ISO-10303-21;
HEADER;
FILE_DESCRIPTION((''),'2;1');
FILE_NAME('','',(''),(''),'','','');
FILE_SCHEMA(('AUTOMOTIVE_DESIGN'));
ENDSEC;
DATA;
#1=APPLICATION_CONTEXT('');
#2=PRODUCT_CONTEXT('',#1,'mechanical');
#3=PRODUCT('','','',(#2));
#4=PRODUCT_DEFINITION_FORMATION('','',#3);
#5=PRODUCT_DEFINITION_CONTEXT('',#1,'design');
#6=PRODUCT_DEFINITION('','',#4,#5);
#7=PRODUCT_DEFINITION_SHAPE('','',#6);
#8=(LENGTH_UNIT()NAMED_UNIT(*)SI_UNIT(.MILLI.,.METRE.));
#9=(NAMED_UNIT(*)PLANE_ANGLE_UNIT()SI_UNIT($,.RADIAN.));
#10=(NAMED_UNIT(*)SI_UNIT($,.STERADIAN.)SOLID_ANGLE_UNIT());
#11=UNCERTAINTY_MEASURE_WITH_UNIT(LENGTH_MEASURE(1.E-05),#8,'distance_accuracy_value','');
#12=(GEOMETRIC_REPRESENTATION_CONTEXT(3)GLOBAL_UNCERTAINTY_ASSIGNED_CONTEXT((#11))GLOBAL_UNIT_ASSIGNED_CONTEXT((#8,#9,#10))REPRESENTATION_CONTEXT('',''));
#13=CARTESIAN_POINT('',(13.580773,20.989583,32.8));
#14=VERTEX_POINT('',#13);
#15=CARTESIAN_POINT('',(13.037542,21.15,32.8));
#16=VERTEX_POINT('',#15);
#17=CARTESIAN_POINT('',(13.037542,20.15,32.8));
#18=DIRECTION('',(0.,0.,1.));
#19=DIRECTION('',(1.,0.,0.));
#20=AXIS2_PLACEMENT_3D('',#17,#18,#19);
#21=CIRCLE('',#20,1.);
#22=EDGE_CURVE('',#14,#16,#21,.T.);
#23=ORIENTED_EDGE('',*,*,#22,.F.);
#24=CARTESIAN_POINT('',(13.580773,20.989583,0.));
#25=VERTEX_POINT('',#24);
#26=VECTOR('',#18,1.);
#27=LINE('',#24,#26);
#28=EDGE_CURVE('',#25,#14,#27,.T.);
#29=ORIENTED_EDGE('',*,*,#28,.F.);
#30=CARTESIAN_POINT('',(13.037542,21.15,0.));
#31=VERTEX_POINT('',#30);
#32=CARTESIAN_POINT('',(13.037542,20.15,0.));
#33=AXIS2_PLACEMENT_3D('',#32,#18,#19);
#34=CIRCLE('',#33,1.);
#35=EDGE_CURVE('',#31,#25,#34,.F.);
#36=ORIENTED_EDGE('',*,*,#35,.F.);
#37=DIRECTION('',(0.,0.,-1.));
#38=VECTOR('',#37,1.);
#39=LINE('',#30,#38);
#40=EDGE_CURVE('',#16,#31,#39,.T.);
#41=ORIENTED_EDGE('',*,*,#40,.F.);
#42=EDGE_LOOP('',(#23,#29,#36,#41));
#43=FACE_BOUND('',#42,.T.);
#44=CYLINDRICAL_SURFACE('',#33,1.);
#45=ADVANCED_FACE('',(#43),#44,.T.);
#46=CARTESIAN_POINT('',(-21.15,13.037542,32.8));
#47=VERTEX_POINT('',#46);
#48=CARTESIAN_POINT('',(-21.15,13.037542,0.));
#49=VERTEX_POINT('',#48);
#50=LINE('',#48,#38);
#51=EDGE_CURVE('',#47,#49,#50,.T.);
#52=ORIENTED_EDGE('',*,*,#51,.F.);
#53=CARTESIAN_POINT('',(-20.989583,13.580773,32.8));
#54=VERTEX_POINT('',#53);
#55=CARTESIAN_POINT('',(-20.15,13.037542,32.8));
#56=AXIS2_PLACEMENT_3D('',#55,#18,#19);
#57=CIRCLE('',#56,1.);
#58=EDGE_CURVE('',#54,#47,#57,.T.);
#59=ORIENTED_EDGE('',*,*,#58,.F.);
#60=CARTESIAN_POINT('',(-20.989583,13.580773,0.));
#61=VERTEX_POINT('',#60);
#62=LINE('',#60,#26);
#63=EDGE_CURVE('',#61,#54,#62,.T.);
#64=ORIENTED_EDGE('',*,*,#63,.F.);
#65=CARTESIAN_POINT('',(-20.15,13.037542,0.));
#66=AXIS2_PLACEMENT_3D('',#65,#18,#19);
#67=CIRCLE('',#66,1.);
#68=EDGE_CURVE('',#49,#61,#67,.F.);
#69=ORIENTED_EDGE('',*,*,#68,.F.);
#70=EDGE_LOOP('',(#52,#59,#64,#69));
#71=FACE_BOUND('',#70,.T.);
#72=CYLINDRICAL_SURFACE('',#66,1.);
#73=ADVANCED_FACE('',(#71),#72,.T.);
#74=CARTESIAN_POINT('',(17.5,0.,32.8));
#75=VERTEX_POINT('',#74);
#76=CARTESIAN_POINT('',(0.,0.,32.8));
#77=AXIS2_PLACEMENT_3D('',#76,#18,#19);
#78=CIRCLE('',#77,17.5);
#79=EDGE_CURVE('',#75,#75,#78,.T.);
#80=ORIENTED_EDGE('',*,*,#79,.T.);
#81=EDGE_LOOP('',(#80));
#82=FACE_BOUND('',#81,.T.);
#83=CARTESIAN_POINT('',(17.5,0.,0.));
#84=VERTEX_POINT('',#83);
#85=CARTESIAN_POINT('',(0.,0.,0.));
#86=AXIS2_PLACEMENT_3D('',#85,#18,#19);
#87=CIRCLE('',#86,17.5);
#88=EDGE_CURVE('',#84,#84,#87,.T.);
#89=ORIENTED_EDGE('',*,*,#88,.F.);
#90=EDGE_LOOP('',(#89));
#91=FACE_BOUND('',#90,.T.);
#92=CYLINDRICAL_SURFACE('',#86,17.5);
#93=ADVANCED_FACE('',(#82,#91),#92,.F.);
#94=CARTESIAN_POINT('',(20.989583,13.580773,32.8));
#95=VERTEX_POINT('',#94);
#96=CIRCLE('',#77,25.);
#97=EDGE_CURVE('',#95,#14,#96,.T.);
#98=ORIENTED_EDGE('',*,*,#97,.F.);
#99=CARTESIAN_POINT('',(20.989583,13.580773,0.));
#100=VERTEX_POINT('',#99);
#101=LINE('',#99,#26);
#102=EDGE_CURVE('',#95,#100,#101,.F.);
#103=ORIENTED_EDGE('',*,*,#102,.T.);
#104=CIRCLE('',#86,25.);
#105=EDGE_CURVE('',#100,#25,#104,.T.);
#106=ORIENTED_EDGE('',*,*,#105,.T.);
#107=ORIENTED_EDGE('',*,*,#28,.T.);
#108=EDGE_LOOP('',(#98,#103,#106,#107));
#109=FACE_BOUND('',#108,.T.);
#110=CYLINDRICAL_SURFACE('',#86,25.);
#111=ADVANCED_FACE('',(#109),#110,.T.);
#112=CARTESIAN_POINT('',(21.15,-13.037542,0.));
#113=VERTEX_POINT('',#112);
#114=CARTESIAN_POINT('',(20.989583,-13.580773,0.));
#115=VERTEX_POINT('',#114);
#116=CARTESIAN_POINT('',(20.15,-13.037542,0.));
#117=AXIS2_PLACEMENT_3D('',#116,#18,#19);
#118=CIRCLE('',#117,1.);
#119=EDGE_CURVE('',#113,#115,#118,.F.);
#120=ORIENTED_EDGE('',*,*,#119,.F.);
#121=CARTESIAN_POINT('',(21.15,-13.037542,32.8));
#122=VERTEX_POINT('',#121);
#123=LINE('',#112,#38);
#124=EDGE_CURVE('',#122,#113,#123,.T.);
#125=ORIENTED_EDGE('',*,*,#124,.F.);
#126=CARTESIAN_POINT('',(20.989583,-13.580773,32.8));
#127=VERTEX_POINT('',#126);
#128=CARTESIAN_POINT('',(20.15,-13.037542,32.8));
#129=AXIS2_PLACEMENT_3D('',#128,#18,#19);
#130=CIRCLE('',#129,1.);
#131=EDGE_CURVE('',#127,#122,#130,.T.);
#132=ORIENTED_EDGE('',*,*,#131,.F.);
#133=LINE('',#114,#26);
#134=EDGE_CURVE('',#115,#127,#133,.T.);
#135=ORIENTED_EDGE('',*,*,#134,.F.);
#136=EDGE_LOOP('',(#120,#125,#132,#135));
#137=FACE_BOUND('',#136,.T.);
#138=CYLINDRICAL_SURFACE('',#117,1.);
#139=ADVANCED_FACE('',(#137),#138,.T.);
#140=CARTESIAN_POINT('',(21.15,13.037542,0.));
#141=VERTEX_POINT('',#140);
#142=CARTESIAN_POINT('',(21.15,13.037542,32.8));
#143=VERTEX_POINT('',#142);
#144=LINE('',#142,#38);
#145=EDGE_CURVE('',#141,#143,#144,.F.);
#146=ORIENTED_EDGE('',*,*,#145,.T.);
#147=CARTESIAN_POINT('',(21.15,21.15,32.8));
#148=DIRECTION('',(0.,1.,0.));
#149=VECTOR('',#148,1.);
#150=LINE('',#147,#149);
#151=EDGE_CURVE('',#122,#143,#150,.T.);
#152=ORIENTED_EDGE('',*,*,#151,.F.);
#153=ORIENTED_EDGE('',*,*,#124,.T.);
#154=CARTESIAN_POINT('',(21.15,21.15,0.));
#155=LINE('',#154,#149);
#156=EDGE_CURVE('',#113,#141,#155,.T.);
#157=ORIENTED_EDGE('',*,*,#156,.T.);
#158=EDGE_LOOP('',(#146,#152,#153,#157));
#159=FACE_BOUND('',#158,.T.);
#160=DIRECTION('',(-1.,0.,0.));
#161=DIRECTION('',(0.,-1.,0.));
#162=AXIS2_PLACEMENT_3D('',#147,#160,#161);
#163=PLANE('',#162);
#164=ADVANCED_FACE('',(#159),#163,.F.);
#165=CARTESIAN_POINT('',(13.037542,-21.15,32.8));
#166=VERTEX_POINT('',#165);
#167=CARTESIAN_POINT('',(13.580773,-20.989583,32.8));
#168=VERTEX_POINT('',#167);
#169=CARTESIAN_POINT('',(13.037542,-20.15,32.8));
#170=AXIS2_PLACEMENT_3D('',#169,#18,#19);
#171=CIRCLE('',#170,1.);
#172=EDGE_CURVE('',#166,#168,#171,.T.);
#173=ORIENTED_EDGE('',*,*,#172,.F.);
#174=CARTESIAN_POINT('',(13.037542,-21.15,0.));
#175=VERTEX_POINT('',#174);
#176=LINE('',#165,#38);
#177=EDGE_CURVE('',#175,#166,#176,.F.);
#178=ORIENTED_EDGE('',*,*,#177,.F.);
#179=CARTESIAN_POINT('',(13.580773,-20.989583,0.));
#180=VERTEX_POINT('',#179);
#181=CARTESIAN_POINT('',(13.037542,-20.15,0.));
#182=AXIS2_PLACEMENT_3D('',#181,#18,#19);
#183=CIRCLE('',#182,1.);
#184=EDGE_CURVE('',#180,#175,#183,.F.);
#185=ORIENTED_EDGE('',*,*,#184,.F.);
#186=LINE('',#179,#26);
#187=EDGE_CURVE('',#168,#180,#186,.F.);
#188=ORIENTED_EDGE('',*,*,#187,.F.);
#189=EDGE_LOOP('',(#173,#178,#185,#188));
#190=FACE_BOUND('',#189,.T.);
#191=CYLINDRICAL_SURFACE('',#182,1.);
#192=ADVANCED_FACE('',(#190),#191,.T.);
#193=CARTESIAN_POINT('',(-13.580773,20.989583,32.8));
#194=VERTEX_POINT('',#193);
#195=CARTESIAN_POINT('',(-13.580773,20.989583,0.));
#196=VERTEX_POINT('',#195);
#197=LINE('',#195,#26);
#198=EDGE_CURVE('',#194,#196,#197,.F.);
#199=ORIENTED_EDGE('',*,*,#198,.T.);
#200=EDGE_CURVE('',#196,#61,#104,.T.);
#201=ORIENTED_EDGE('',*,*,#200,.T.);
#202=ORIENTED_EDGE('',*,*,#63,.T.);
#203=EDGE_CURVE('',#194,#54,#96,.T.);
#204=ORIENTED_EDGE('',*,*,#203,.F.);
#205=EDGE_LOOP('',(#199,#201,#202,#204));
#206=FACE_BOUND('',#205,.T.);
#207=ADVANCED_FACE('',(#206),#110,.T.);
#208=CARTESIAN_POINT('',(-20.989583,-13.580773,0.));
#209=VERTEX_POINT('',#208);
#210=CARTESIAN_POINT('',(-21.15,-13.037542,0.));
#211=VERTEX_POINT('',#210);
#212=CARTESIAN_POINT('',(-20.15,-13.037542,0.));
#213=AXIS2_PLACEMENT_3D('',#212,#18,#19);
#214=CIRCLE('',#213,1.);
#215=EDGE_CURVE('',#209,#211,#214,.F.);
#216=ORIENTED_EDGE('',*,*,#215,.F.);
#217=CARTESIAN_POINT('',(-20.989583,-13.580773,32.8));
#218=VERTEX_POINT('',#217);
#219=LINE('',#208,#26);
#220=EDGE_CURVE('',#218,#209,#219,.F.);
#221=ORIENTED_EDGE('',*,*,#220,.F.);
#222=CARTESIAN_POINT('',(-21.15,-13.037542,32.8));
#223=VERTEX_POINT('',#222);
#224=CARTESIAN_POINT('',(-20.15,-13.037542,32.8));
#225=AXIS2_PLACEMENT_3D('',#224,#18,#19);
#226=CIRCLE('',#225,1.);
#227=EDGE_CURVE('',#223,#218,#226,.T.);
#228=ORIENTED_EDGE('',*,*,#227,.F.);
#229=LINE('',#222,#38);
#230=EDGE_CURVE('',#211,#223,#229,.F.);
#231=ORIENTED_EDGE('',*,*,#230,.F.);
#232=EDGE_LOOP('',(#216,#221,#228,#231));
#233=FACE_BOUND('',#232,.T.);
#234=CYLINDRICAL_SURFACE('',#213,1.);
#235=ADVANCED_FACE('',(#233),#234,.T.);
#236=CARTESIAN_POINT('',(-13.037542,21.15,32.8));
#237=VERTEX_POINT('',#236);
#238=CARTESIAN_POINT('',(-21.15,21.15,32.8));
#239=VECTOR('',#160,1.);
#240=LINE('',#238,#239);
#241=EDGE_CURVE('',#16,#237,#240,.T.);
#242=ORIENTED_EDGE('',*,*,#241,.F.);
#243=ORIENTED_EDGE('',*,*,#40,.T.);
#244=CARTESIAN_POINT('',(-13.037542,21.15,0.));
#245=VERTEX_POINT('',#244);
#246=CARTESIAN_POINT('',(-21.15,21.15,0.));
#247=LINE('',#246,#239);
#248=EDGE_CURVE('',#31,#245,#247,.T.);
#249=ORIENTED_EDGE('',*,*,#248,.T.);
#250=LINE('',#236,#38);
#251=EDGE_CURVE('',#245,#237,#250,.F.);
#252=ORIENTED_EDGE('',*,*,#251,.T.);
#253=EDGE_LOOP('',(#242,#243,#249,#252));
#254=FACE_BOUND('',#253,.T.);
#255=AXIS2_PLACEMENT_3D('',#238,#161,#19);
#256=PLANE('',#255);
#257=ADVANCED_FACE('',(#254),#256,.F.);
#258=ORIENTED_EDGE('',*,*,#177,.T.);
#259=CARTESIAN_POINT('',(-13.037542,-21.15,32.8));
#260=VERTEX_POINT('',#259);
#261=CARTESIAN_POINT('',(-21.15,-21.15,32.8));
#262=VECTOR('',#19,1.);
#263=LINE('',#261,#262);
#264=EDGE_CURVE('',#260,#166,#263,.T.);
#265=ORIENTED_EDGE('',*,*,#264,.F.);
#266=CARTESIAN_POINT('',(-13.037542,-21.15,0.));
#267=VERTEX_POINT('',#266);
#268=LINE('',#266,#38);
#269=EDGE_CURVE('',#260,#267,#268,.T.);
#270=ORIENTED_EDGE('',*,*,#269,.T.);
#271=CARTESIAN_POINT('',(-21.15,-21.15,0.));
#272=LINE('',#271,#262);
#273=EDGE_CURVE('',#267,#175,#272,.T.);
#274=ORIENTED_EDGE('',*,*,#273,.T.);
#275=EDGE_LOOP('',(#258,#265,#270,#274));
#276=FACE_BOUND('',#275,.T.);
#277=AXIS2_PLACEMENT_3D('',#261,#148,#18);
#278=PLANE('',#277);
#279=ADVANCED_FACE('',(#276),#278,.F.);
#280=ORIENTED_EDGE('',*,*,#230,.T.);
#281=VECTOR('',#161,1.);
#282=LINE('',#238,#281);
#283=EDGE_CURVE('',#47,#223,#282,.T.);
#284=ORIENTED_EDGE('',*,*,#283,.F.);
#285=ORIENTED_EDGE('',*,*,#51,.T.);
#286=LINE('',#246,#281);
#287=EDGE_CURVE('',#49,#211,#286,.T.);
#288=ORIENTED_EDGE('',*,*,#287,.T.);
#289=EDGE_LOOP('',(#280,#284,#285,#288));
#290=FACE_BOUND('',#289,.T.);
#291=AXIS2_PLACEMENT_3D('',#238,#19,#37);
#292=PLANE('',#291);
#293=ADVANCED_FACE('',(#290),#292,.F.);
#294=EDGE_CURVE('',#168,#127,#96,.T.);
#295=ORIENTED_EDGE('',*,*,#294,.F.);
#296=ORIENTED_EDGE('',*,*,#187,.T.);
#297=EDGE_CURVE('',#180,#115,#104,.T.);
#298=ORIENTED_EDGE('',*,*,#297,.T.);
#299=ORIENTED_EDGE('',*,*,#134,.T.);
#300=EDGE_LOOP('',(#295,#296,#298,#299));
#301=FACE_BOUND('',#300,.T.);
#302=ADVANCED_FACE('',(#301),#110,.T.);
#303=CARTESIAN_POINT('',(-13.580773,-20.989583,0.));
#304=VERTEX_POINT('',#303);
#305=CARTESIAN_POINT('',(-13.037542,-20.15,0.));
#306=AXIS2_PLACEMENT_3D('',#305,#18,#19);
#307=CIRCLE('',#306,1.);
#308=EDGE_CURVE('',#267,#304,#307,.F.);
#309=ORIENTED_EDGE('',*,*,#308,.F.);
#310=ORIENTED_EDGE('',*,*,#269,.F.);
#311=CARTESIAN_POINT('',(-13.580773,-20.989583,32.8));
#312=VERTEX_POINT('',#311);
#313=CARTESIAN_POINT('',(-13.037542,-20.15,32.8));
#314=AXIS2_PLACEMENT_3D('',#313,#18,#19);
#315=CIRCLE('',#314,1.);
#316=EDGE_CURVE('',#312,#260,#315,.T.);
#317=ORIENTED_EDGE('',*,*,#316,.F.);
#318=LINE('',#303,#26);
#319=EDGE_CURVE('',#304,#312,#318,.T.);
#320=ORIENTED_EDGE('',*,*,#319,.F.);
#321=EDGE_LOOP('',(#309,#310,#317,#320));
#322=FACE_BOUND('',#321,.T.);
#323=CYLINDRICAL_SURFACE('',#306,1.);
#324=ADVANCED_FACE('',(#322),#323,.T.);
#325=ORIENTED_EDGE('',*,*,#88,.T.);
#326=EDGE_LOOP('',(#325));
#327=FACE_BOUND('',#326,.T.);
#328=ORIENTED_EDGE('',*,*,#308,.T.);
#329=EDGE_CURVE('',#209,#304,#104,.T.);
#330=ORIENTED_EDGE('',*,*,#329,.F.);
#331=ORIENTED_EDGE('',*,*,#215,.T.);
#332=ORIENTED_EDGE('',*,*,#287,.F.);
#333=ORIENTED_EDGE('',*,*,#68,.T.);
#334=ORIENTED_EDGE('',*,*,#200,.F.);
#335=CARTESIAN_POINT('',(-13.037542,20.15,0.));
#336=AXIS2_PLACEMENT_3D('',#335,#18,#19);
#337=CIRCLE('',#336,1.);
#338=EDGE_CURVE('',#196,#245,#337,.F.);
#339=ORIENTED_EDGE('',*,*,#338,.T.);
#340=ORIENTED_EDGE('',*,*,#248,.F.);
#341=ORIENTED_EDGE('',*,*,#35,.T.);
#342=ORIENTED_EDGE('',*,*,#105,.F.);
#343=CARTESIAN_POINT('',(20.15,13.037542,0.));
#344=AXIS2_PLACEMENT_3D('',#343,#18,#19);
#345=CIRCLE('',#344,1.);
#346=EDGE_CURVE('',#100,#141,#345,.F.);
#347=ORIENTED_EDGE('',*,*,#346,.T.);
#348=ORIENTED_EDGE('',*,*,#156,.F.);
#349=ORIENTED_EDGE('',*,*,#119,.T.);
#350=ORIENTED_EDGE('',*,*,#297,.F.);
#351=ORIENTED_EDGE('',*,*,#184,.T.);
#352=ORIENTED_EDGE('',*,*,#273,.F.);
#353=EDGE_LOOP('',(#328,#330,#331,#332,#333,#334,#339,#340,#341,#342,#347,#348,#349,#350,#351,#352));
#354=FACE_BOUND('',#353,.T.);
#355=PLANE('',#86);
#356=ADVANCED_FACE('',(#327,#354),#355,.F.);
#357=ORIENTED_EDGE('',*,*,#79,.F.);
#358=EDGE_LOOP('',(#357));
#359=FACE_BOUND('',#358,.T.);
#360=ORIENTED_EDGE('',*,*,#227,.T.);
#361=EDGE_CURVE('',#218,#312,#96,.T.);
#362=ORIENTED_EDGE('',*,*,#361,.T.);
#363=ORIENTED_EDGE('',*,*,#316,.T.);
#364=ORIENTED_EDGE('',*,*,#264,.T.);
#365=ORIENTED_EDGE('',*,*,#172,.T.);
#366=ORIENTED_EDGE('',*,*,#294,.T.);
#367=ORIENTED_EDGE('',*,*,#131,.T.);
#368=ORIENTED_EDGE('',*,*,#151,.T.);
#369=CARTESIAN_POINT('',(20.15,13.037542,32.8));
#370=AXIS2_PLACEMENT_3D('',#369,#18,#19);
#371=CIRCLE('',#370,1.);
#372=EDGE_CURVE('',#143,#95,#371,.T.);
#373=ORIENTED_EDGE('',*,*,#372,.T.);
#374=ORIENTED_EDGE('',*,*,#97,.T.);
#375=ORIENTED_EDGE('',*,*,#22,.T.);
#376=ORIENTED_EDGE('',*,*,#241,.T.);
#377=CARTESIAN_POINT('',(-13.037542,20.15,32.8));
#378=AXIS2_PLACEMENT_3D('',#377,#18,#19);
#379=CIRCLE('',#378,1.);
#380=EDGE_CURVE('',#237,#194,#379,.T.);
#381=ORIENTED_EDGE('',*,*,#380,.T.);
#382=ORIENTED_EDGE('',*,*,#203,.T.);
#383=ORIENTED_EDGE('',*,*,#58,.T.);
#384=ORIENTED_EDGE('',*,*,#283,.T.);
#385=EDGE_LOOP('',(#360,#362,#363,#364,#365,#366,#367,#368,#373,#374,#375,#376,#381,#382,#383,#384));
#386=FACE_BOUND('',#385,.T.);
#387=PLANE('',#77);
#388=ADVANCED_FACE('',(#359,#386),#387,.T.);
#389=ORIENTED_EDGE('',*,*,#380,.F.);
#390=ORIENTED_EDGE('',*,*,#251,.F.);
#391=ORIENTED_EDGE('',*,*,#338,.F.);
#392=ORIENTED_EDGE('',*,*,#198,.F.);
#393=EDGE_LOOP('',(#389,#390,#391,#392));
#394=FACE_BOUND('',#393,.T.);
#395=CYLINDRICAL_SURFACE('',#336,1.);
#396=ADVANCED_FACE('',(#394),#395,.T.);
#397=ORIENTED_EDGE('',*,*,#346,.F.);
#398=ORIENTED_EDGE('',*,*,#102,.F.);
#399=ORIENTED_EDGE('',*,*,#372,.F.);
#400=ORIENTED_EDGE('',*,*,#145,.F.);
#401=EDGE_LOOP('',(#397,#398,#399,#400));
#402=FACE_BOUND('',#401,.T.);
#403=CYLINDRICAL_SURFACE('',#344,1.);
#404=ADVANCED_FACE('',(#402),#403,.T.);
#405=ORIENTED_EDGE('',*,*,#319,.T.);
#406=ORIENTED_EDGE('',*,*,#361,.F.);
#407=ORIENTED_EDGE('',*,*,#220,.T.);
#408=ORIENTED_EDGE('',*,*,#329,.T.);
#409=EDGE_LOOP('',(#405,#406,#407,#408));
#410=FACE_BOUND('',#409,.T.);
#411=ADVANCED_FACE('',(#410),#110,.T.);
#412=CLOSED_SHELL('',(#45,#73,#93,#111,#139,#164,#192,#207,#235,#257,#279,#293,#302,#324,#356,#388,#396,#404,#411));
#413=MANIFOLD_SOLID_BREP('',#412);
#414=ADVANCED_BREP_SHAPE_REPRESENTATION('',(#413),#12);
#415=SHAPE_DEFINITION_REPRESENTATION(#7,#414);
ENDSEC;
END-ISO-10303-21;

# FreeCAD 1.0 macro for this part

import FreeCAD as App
import Part
import Sketcher

V = App.Vector


def edges_at(feature, points):
    """Names of the edges that pass closest to the given points."""
    edges = feature.Shape.Edges
    near = lambda p: min(range(len(edges)), key=lambda i: edges[i].distToShape(Part.Vertex(*p))[0])
    return sorted({f"Edge{near(p) + 1}" for p in points})


def add_polygon(sketch, points):
    """Adds a closed chain of lines whose ends are joined by coincident constraints."""
    first, n = sketch.GeometryCount, len(points)
    for a, b in zip(points, points[1:] + points[:1]):
        sketch.addGeometry(Part.LineSegment(App.Vector(*a, 0), App.Vector(*b, 0)), False)
    for i in range(n):
        sketch.addConstraint(Sketcher.Constraint("Coincident", first + i, 2, first + (i + 1) % n, 1))

doc = App.newDocument("Part")
params = doc.addObject("Spreadsheet::Sheet", "Params")
for row, (alias, value) in enumerate([
    ("sketch1_width", "42.3 mm"),
    ("pad1_length", "32.8 mm"),
    ("sketch2_diameter", "50 mm"),
    ("fillet_radius", "1 mm"),
    ("sketch3_diameter", "35 mm"),
], start=1):
    params.set(f"A{row}", alias)
    params.set(f"B{row}", "=" + value)
    params.setAlias(f"B{row}", alias)

body = doc.addObject("PartDesign::Body", "Body")

# Sketch on XY plane
sketch1 = doc.addObject("Sketcher::SketchObject", "Sketch")
body.addObject(sketch1)
sketch1.AttachmentSupport = (doc.XY_Plane, [""])
sketch1.MapMode = "FlatFace"
add_polygon(sketch1, [(-21, 21), (-21, -21), (21, -21), (21, 21)])  # lines 0-3
sketch1.addConstraint([
    Sketcher.Constraint("Vertical", 0),
    Sketcher.Constraint("Horizontal", 1),
    Sketcher.Constraint("Vertical", 2),
    Sketcher.Constraint("Horizontal", 3),
    Sketcher.Constraint("Symmetric", 0, 2, 2, 2, -1, 1),
    Sketcher.Constraint("Equal", 3, 0),
    Sketcher.Constraint("DistanceX", 1, 1, 1, 2, 42.3),
])
sketch1.setExpression("Constraints[10]", "Params.sketch1_width")
pad1 = doc.addObject("PartDesign::Pad", "Pad")
body.addObject(pad1)
pad1.Profile = sketch1
pad1.setExpression("Length", "Params.pad1_length")

# Sketch on XY plane
sketch2 = doc.addObject("Sketcher::SketchObject", "Sketch001")
body.addObject(sketch2)
sketch2.AttachmentSupport = (doc.XY_Plane, [""])
sketch2.MapMode = "FlatFace"
sketch2.AttachmentOffset = App.Placement(V(0, 0, 32.8), App.Rotation())
sketch2.addGeometry([
    Part.Circle(V(0, 0, 0), V(0, 0, 1), 30),
    Part.Circle(V(0, 0, 0), V(0, 0, 1), 25),
], False)
sketch2.addConstraint([
    Sketcher.Constraint("Coincident", 0, 3, -1, 1),
    Sketcher.Constraint("Coincident", 1, 3, -1, 1),
    Sketcher.Constraint("Diameter", 1, 50.0),
    Sketcher.Constraint("Diameter", 0, 59.821234),
])
sketch2.setExpression("Constraints[2]", "Params.sketch2_diameter")
pocket1 = doc.addObject("PartDesign::Pocket", "Pocket")
body.addObject(pocket1)
pocket1.Profile = sketch2
pocket1.Type = "ThroughAll"
doc.recompute()

fillet = doc.addObject("PartDesign::Fillet", "Fillet")
body.addObject(fillet)
fillet.Base = (pocket1, edges_at(pocket1, [
    (21.15, -13.33, 16.4),
    (21.15, 13.33, 16.4),
    (13.33, 21.15, 16.4),
    (-13.33, 21.15, 16.4),
    (-21.15, 13.33, 16.4),
    (-21.15, -13.33, 16.4),
    (-13.33, -21.15, 16.4),
    (13.33, -21.15, 16.4),
]))
fillet.setExpression("Radius", "Params.fillet_radius")

# Sketch on XY plane
sketch3 = doc.addObject("Sketcher::SketchObject", "Sketch002")
body.addObject(sketch3)
sketch3.AttachmentSupport = (doc.XY_Plane, [""])
sketch3.MapMode = "FlatFace"
sketch3.AttachmentOffset = App.Placement(V(0, 0, 32.8), App.Rotation())
sketch3.addGeometry(Part.Circle(V(0, 0, 0), V(0, 0, 1), 18), False)
sketch3.addConstraint([
    Sketcher.Constraint("Coincident", 0, 3, -1, 1),
    Sketcher.Constraint("Diameter", 0, 35.0),
])
sketch3.setExpression("Constraints[1]", "Params.sketch3_diameter")
pocket2 = doc.addObject("PartDesign::Pocket", "Pocket001")
body.addObject(pocket2)
pocket2.Profile = sketch3
pocket2.Type = "ThroughAll"

doc.recompute()
